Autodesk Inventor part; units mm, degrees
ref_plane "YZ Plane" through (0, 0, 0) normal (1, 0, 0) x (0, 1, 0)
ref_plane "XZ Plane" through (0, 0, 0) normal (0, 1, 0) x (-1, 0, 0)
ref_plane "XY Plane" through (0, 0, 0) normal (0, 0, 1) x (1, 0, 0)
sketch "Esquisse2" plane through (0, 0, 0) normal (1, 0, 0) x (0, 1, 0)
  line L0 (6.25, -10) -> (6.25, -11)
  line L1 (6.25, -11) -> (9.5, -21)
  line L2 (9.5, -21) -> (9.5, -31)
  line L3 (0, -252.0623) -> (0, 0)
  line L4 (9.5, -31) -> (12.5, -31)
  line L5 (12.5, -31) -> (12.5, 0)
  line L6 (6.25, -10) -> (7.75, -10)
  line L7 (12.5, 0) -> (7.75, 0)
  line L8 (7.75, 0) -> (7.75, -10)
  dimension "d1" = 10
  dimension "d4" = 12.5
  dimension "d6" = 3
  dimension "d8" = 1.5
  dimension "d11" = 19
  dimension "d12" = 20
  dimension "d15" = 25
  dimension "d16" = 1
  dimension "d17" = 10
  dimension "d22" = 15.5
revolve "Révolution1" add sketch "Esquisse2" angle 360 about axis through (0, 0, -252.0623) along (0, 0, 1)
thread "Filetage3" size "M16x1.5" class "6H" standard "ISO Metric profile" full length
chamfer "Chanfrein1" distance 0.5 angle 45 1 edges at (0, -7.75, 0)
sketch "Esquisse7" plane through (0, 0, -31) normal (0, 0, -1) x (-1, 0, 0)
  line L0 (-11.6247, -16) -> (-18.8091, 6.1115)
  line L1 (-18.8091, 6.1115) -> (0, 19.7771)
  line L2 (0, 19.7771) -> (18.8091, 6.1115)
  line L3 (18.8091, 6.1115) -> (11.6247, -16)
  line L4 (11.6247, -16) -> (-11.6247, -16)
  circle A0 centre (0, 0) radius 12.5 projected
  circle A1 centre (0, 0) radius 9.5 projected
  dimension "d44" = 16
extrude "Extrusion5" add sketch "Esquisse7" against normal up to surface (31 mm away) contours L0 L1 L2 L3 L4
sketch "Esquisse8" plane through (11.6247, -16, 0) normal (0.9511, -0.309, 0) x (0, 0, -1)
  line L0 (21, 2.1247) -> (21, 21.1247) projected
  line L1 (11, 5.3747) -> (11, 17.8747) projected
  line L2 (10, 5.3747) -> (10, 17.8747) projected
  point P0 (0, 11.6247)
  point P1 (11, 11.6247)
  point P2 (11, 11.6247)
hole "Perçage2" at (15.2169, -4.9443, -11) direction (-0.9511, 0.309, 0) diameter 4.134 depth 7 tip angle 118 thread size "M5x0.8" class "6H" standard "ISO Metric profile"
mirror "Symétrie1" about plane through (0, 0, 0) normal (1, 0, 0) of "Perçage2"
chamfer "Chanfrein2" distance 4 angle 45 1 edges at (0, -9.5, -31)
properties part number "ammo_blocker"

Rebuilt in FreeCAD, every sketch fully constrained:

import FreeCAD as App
import Part
import Sketcher
from FreeCAD import Vector
Q = App.Units.Quantity


def edges_at(feature, points):
    """Names of the edges that pass closest to the given points."""
    edges = feature.Shape.Edges
    near = lambda p: min(range(len(edges)), key=lambda i: edges[i].distToShape(Part.Vertex(*p))[0])
    return sorted({f"Edge{near(p) + 1}" for p in points})

doc = App.newDocument("Part")
body = doc.addObject("PartDesign::Body", "Body")

# Sketch on YZ plane
sketch1 = doc.addObject("Sketcher::SketchObject", "Sketch")
body.addObject(sketch1)
sketch1.AttachmentSupport = (doc.YZ_Plane, [""])
sketch1.MapMode = "FlatFace"
sketch1.addGeometry(Part.LineSegment(Vector(7.8, -10, 0), Vector(6.2, -10, 0)), False)
sketch1.addGeometry(Part.LineSegment(Vector(6.2, -10, 0), Vector(6.2, -11, 0)), False)
sketch1.addGeometry(Part.LineSegment(Vector(6.2, -11, 0), Vector(9.5, -21, 0)), False)
sketch1.addGeometry(Part.LineSegment(Vector(9.5, -21, 0), Vector(9.5, -31, 0)), False)
sketch1.addGeometry(Part.LineSegment(Vector(9.5, -31, 0), Vector(12.5, -31, 0)), False)
sketch1.addGeometry(Part.LineSegment(Vector(12.5, -31, 0), Vector(12.5, 0, 0)), False)
sketch1.addGeometry(Part.LineSegment(Vector(12.5, 0, 0), Vector(7.8, 0, 0)), False)
sketch1.addGeometry(Part.LineSegment(Vector(7.8, 0, 0), Vector(7.8, -10, 0)), False)
sketch1.addConstraint(Sketcher.Constraint("Coincident", 0, 2, 1, 1))
sketch1.addConstraint(Sketcher.Constraint("Coincident", 1, 2, 2, 1))
sketch1.addConstraint(Sketcher.Constraint("Coincident", 2, 2, 3, 1))
sketch1.addConstraint(Sketcher.Constraint("Coincident", 3, 2, 4, 1))
sketch1.addConstraint(Sketcher.Constraint("Coincident", 4, 2, 5, 1))
sketch1.addConstraint(Sketcher.Constraint("Coincident", 5, 2, 6, 1))
sketch1.addConstraint(Sketcher.Constraint("Coincident", 6, 2, 7, 1))
sketch1.addConstraint(Sketcher.Constraint("Coincident", 7, 2, 0, 1))
sketch1.addConstraint(Sketcher.Constraint("Horizontal", 0))
sketch1.addConstraint(Sketcher.Constraint("Vertical", 1))
sketch1.addConstraint(Sketcher.Constraint("Vertical", 3))
sketch1.addConstraint(Sketcher.Constraint("Horizontal", 4))
sketch1.addConstraint(Sketcher.Constraint("Vertical", 5))
sketch1.addConstraint(Sketcher.Constraint("Horizontal", 6))
sketch1.addConstraint(Sketcher.Constraint("Vertical", 7))
sketch1.addConstraint(Sketcher.Constraint("PointOnObject", 5, 2, -1))
sketch1.addConstraint(Sketcher.Constraint("Equal", 3, 7))
sketch1.addConstraint(Sketcher.Constraint("DistanceX", 4, 1, 4, 2, 3.0))
sketch1.addConstraint(Sketcher.Constraint("DistanceY", 1, 2, 1, 1, 1.0))
sketch1.addConstraint(Sketcher.Constraint("DistanceY", 3, 2, 3, 1, 10.0))
sketch1.addConstraint(Sketcher.Constraint("DistanceX", 0, 2, 0, 1, 1.5))
sketch1.addConstraint(Sketcher.Constraint("DistanceY", 2, 2, 1, 2, 10.0))
sketch1.addConstraint(Sketcher.Constraint("DistanceX", -1, 1, 4, 2, 12.5))
sketch1.addConstraint(Sketcher.Constraint("DistanceX", 6, 2, 6, 1, 4.75))
revolution = doc.addObject("PartDesign::Revolution", "Revolution")
body.addObject(revolution)
revolution.Profile = sketch1
revolution.ReferenceAxis = (sketch1, ["V_Axis"])
revolution.Angle = 360
doc.recompute()

chamfer = doc.addObject("PartDesign::Chamfer", "Chamfer")
body.addObject(chamfer)
chamfer.Base = (revolution, edges_at(revolution, [(0, -7.75, 0)]))
chamfer.Size = 0.5

# Sketch on XY plane
sketch2 = doc.addObject("Sketcher::SketchObject", "Sketch001")
body.addObject(sketch2)
sketch2.AttachmentSupport = (doc.XY_Plane, [""])
sketch2.MapMode = "FlatFace"
sketch2.AttachmentOffset = App.Placement(Vector(0, 0, -31), App.Rotation())
sketch2.addGeometry(Part.LineSegment(Vector(19, 6, 0), Vector(12, -16, 0)), False)
sketch2.addGeometry(Part.LineSegment(Vector(12, -16, 0), Vector(-12, -16, 0)), False)
sketch2.addGeometry(Part.LineSegment(Vector(-12, -16, 0), Vector(-19, 6, 0)), False)
sketch2.addGeometry(Part.LineSegment(Vector(-19, 6, 0), Vector(0, 20, 0)), False)
sketch2.addGeometry(Part.LineSegment(Vector(0, 20, 0), Vector(19, 6, 0)), False)
sketch2.addGeometry(Part.Circle(Vector(0, 0, 0), Vector(0, 0, 1), 12), False)
sketch2.addConstraint(Sketcher.Constraint("Coincident", 0, 2, 1, 1))
sketch2.addConstraint(Sketcher.Constraint("Coincident", 1, 2, 2, 1))
sketch2.addConstraint(Sketcher.Constraint("Coincident", 2, 2, 3, 1))
sketch2.addConstraint(Sketcher.Constraint("Coincident", 3, 2, 4, 1))
sketch2.addConstraint(Sketcher.Constraint("Coincident", 4, 2, 0, 1))
sketch2.addConstraint(Sketcher.Constraint("Horizontal", 1))
sketch2.addConstraint(Sketcher.Constraint("Coincident", 5, 3, -1, 1))
sketch2.addConstraint(Sketcher.Constraint("Symmetric", 2, 2, 4, 2, -2))
sketch2.addConstraint(Sketcher.Constraint("PointOnObject", 3, 2, -2))
sketch2.addConstraint(Sketcher.Constraint("Equal", 0, 2))
sketch2.addConstraint(Sketcher.Constraint("Equal", 2, 3))
sketch2.addConstraint(Sketcher.Constraint("Diameter", 5, 25.0))
sketch2.addConstraint(Sketcher.Constraint("DistanceY", 0, 2, -1, 1, 16.0))
sketch2.addConstraint(Sketcher.Constraint("Angle", 0, Q("-107.9999 deg")))
sketch2.addConstraint(Sketcher.Constraint("Angle", 3, Q("36 deg")))
sketch2.addConstraint(Sketcher.Constraint("DistanceX", 1, 2, 1, 1, 23.2494))
pad1 = doc.addObject("PartDesign::Pad", "Pad")
body.addObject(pad1)
pad1.Profile = sketch2
pad1.Length = 31

# Sketch on an angled plane
sketch3 = doc.addObject("Sketcher::SketchObject", "Sketch002")
body.addObject(sketch3)
sketch3.Placement = App.Placement(Vector(15.216909, -4.944273, 0), App.Rotation(Vector(0.309016994, 0.951056516, 0), Vector(0, 0, 0.999999999), Vector(0.951056516, -0.309016994, 0), "ZXY"))
sketch3.addGeometry(Part.Circle(Vector(0, -11, 0), Vector(0, 0, 1), 2.1), False)
sketch3.addConstraint(Sketcher.Constraint("PointOnObject", 0, 3, -2))
sketch3.addConstraint(Sketcher.Constraint("Diameter", 0, 4.134))
sketch3.addConstraint(Sketcher.Constraint("DistanceY", 0, 3, -1, 1, 11.0))
doc.recompute()
hole = doc.addObject("PartDesign::Hole", "Hole")
body.addObject(hole)
hole.Profile = sketch3
hole.ThreadType = "None"
hole.Diameter = 4.134
hole.DepthType = "Dimension"
hole.Depth = 7
hole.DrillPoint = "Angled"
hole.DrillPointAngle = 118
doc.recompute()

mirrored = doc.addObject("PartDesign::Mirrored", "Mirrored")
body.addObject(mirrored)
mirrored.Originals = [hole]
mirrored.MirrorPlane = (doc.YZ_Plane, [""])
body.Tip = mirrored
doc.recompute()

chamfer2 = doc.addObject("PartDesign::Chamfer", "Chamfer001")
body.addObject(chamfer2)
chamfer2.Base = (mirrored, edges_at(mirrored, [(0, -9.5, -31)]))
chamfer2.Size = 4

doc.recompute()
